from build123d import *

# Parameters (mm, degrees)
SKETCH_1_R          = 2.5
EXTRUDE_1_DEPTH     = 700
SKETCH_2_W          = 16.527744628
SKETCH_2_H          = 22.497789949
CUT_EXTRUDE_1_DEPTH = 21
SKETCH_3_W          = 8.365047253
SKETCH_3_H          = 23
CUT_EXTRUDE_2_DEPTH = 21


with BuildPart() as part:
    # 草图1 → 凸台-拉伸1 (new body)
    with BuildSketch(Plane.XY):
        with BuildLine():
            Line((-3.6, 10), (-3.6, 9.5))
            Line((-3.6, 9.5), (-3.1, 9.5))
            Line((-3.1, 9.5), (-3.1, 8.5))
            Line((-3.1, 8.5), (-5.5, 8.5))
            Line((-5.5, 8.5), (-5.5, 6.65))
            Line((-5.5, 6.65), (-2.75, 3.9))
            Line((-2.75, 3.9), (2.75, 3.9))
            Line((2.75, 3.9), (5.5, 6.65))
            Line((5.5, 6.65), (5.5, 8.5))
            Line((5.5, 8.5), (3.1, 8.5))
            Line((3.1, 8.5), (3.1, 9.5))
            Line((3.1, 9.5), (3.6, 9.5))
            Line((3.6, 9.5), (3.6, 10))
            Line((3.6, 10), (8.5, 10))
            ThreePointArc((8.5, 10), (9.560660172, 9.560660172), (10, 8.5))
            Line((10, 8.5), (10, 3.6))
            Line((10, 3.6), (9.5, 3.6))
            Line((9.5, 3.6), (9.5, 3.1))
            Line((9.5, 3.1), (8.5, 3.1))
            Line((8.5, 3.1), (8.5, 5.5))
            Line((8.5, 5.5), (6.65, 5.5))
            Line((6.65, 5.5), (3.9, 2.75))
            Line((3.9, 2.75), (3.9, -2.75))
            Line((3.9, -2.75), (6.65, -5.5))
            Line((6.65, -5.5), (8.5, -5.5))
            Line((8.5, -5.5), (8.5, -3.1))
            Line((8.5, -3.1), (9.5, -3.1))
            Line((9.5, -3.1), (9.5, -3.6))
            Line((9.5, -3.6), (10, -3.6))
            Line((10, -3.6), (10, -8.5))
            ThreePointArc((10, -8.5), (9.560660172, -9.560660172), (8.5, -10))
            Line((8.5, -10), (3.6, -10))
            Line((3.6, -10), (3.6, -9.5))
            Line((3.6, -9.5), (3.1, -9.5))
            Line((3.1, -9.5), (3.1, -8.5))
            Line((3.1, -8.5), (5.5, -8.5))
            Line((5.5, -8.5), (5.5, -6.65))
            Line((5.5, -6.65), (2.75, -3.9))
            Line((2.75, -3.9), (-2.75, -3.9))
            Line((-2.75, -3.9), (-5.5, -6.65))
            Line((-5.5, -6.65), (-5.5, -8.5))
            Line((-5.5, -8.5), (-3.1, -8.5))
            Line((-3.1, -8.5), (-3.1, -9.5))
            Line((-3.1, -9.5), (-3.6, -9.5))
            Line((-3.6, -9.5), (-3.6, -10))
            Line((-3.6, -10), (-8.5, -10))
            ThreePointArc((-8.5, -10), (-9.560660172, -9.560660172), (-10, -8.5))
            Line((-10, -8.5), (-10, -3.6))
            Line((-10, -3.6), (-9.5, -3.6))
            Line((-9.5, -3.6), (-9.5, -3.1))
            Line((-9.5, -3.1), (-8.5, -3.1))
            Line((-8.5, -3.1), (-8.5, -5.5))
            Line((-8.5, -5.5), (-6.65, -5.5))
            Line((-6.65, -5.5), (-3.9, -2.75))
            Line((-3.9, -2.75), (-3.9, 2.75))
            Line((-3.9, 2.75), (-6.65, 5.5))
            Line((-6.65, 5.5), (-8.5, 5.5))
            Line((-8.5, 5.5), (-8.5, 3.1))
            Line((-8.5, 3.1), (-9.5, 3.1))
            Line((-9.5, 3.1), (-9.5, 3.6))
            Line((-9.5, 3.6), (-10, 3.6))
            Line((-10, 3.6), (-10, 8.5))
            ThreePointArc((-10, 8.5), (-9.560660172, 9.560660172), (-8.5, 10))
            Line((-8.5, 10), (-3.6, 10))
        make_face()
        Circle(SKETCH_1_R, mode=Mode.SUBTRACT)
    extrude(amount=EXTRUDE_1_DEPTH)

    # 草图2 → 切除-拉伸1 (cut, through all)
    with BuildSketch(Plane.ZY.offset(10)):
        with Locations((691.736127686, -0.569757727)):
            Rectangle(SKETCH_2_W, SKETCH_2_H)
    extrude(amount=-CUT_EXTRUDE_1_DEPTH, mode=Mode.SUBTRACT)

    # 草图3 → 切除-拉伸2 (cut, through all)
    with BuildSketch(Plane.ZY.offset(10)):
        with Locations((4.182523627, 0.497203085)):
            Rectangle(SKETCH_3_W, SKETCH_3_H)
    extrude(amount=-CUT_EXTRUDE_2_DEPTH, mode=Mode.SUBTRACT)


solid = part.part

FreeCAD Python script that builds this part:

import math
import FreeCAD as App
import Part
import Sketcher

doc = App.newDocument("Part")
params = doc.addObject("Spreadsheet::Sheet", "Params")
for row, (alias, value) in enumerate([
    ("sketch1_diameter", "5 mm"),
    ("sketch1_radius", "1.5 mm"),
    ("sketch1_width", "1 mm"),
    ("sketch1_width2", "4.9 mm"),
    ("sketch1_width3", "2.4 mm"),
    ("pad1_length", "700 mm"),
    ("sketch3_width", "23 mm"),
], start=1):
    params.set(f"A{row}", alias)
    params.set(f"B{row}", "=" + value)
    params.setAlias(f"B{row}", alias)

body = doc.addObject("PartDesign::Body", "Body")

# Sketch on XY plane
sketch1 = body.newObject("Sketcher::SketchObject", "Sketch")
sketch1.AttachmentSupport = (doc.getObject("XY_Plane"), [""])
sketch1.MapMode = "FlatFace"
sketch1.addGeometry([
    Part.LineSegment(App.Vector(-3.6, 9.5, 0), App.Vector(-3.6, 10, 0)),  # 0
    Part.LineSegment(App.Vector(-3.6, 10, 0), App.Vector(-8.5, 10, 0)),  # 1
    Part.ArcOfCircle(Part.Circle(App.Vector(-8.5, 8.5, 0), App.Vector(0, 0, 1), 1.5), math.radians(90), math.radians(180)),  # 2
    Part.LineSegment(App.Vector(-10, 8.5, 0), App.Vector(-10, 3.6, 0)),  # 3
    Part.LineSegment(App.Vector(-10, 3.6, 0), App.Vector(-9.5, 3.6, 0)),  # 4
    Part.LineSegment(App.Vector(-9.5, 3.6, 0), App.Vector(-9.5, 3.1, 0)),  # 5
    Part.LineSegment(App.Vector(-9.5, 3.1, 0), App.Vector(-8.5, 3.1, 0)),  # 6
    Part.LineSegment(App.Vector(-8.5, 3.1, 0), App.Vector(-8.5, 5.5, 0)),  # 7
    Part.LineSegment(App.Vector(-8.5, 5.5, 0), App.Vector(-6.7, 5.5, 0)),  # 8
    Part.LineSegment(App.Vector(-6.7, 5.5, 0), App.Vector(-3.9, 2.8, 0)),  # 9
    Part.LineSegment(App.Vector(-3.9, 2.8, 0), App.Vector(-3.9, -2.8, 0)),  # 10
    Part.LineSegment(App.Vector(-3.9, -2.8, 0), App.Vector(-6.7, -5.5, 0)),  # 11
    Part.LineSegment(App.Vector(-6.7, -5.5, 0), App.Vector(-8.5, -5.5, 0)),  # 12
    Part.LineSegment(App.Vector(-8.5, -5.5, 0), App.Vector(-8.5, -3.1, 0)),  # 13
    Part.LineSegment(App.Vector(-8.5, -3.1, 0), App.Vector(-9.5, -3.1, 0)),  # 14
    Part.LineSegment(App.Vector(-9.5, -3.1, 0), App.Vector(-9.5, -3.6, 0)),  # 15
    Part.LineSegment(App.Vector(-9.5, -3.6, 0), App.Vector(-10, -3.6, 0)),  # 16
    Part.LineSegment(App.Vector(-10, -3.6, 0), App.Vector(-10, -8.5, 0)),  # 17
    Part.ArcOfCircle(Part.Circle(App.Vector(-8.5, -8.5, 0), App.Vector(0, 0, 1), 1.5), math.radians(180), math.radians(270)),  # 18
    Part.LineSegment(App.Vector(-8.5, -10, 0), App.Vector(-3.6, -10, 0)),  # 19
    Part.LineSegment(App.Vector(-3.6, -10, 0), App.Vector(-3.6, -9.5, 0)),  # 20
    Part.LineSegment(App.Vector(-3.6, -9.5, 0), App.Vector(-3.1, -9.5, 0)),  # 21
    Part.LineSegment(App.Vector(-3.1, -9.5, 0), App.Vector(-3.1, -8.5, 0)),  # 22
    Part.LineSegment(App.Vector(-3.1, -8.5, 0), App.Vector(-5.5, -8.5, 0)),  # 23
    Part.LineSegment(App.Vector(-5.5, -8.5, 0), App.Vector(-5.5, -6.7, 0)),  # 24
    Part.LineSegment(App.Vector(-5.5, -6.7, 0), App.Vector(-2.8, -3.9, 0)),  # 25
    Part.LineSegment(App.Vector(-2.8, -3.9, 0), App.Vector(2.8, -3.9, 0)),  # 26
    Part.LineSegment(App.Vector(2.8, -3.9, 0), App.Vector(5.5, -6.7, 0)),  # 27
    Part.LineSegment(App.Vector(5.5, -6.7, 0), App.Vector(5.5, -8.5, 0)),  # 28
    Part.LineSegment(App.Vector(5.5, -8.5, 0), App.Vector(3.1, -8.5, 0)),  # 29
    Part.LineSegment(App.Vector(3.1, -8.5, 0), App.Vector(3.1, -9.5, 0)),  # 30
    Part.LineSegment(App.Vector(3.1, -9.5, 0), App.Vector(3.6, -9.5, 0)),  # 31
    Part.LineSegment(App.Vector(3.6, -9.5, 0), App.Vector(3.6, -10, 0)),  # 32
    Part.LineSegment(App.Vector(3.6, -10, 0), App.Vector(8.5, -10, 0)),  # 33
    Part.ArcOfCircle(Part.Circle(App.Vector(8.5, -8.5, 0), App.Vector(0, 0, 1), 1.5), math.radians(-90), math.radians(0)),  # 34
    Part.LineSegment(App.Vector(10, -8.5, 0), App.Vector(10, -3.6, 0)),  # 35
    Part.LineSegment(App.Vector(10, -3.6, 0), App.Vector(9.5, -3.6, 0)),  # 36
    Part.LineSegment(App.Vector(9.5, -3.6, 0), App.Vector(9.5, -3.1, 0)),  # 37
    Part.LineSegment(App.Vector(9.5, -3.1, 0), App.Vector(8.5, -3.1, 0)),  # 38
    Part.LineSegment(App.Vector(8.5, -3.1, 0), App.Vector(8.5, -5.5, 0)),  # 39
    Part.LineSegment(App.Vector(8.5, -5.5, 0), App.Vector(6.7, -5.5, 0)),  # 40
    Part.LineSegment(App.Vector(6.7, -5.5, 0), App.Vector(3.9, -2.8, 0)),  # 41
    Part.LineSegment(App.Vector(3.9, -2.8, 0), App.Vector(3.9, 2.8, 0)),  # 42
    Part.LineSegment(App.Vector(3.9, 2.8, 0), App.Vector(6.7, 5.5, 0)),  # 43
    Part.LineSegment(App.Vector(6.7, 5.5, 0), App.Vector(8.5, 5.5, 0)),  # 44
    Part.LineSegment(App.Vector(8.5, 5.5, 0), App.Vector(8.5, 3.1, 0)),  # 45
    Part.LineSegment(App.Vector(8.5, 3.1, 0), App.Vector(9.5, 3.1, 0)),  # 46
    Part.LineSegment(App.Vector(9.5, 3.1, 0), App.Vector(9.5, 3.6, 0)),  # 47
    Part.LineSegment(App.Vector(9.5, 3.6, 0), App.Vector(10, 3.6, 0)),  # 48
    Part.LineSegment(App.Vector(10, 3.6, 0), App.Vector(10, 8.5, 0)),  # 49
    Part.ArcOfCircle(Part.Circle(App.Vector(8.5, 8.5, 0), App.Vector(0, 0, 1), 1.5), math.radians(0), math.radians(90)),  # 50
    Part.LineSegment(App.Vector(8.5, 10, 0), App.Vector(3.6, 10, 0)),  # 51
    Part.LineSegment(App.Vector(3.6, 10, 0), App.Vector(3.6, 9.5, 0)),  # 52
    Part.LineSegment(App.Vector(3.6, 9.5, 0), App.Vector(3.1, 9.5, 0)),  # 53
    Part.LineSegment(App.Vector(3.1, 9.5, 0), App.Vector(3.1, 8.5, 0)),  # 54
    Part.LineSegment(App.Vector(3.1, 8.5, 0), App.Vector(5.5, 8.5, 0)),  # 55
    Part.LineSegment(App.Vector(5.5, 8.5, 0), App.Vector(5.5, 6.7, 0)),  # 56
    Part.LineSegment(App.Vector(5.5, 6.7, 0), App.Vector(2.8, 3.9, 0)),  # 57
    Part.LineSegment(App.Vector(2.8, 3.9, 0), App.Vector(-2.8, 3.9, 0)),  # 58
    Part.LineSegment(App.Vector(-2.8, 3.9, 0), App.Vector(-5.5, 6.7, 0)),  # 59
    Part.LineSegment(App.Vector(-5.5, 6.7, 0), App.Vector(-5.5, 8.5, 0)),  # 60
    Part.LineSegment(App.Vector(-5.5, 8.5, 0), App.Vector(-3.1, 8.5, 0)),  # 61
    Part.LineSegment(App.Vector(-3.1, 8.5, 0), App.Vector(-3.1, 9.5, 0)),  # 62
    Part.LineSegment(App.Vector(-3.1, 9.5, 0), App.Vector(-3.6, 9.5, 0)),  # 63
    Part.Circle(App.Vector(0, 0, 0), App.Vector(0, 0, 1), 2.5),  # 64
], False)
sketch1.addConstraint([
    Sketcher.Constraint("Coincident", 0, 2, 1, 1),
    Sketcher.Constraint("Tangent", 1, 2, 2, 1),
    Sketcher.Constraint("Tangent", 2, 2, 3, 1),
    Sketcher.Constraint("Coincident", 3, 2, 4, 1),
    Sketcher.Constraint("Coincident", 4, 2, 5, 1),
    Sketcher.Constraint("Coincident", 5, 2, 6, 1),
    Sketcher.Constraint("Coincident", 6, 2, 7, 1),
    Sketcher.Constraint("Coincident", 7, 2, 8, 1),
    Sketcher.Constraint("Coincident", 8, 2, 9, 1),
    Sketcher.Constraint("Coincident", 9, 2, 10, 1),
    Sketcher.Constraint("Coincident", 10, 2, 11, 1),
    Sketcher.Constraint("Coincident", 11, 2, 12, 1),
    Sketcher.Constraint("Coincident", 12, 2, 13, 1),
    Sketcher.Constraint("Coincident", 13, 2, 14, 1),
    Sketcher.Constraint("Coincident", 14, 2, 15, 1),
    Sketcher.Constraint("Coincident", 15, 2, 16, 1),
    Sketcher.Constraint("Coincident", 16, 2, 17, 1),
    Sketcher.Constraint("Tangent", 17, 2, 18, 1),
    Sketcher.Constraint("Tangent", 18, 2, 19, 1),
    Sketcher.Constraint("Coincident", 19, 2, 20, 1),
    Sketcher.Constraint("Coincident", 20, 2, 21, 1),
    Sketcher.Constraint("Coincident", 21, 2, 22, 1),
    Sketcher.Constraint("Coincident", 22, 2, 23, 1),
    Sketcher.Constraint("Coincident", 23, 2, 24, 1),
    Sketcher.Constraint("Coincident", 24, 2, 25, 1),
    Sketcher.Constraint("Coincident", 25, 2, 26, 1),
    Sketcher.Constraint("Coincident", 26, 2, 27, 1),
    Sketcher.Constraint("Coincident", 27, 2, 28, 1),
    Sketcher.Constraint("Coincident", 28, 2, 29, 1),
    Sketcher.Constraint("Coincident", 29, 2, 30, 1),
    Sketcher.Constraint("Coincident", 30, 2, 31, 1),
    Sketcher.Constraint("Coincident", 31, 2, 32, 1),
    Sketcher.Constraint("Coincident", 32, 2, 33, 1),
    Sketcher.Constraint("Tangent", 33, 2, 34, 1),
    Sketcher.Constraint("Tangent", 34, 2, 35, 1),
    Sketcher.Constraint("Coincident", 35, 2, 36, 1),
    Sketcher.Constraint("Coincident", 36, 2, 37, 1),
    Sketcher.Constraint("Coincident", 37, 2, 38, 1),
    Sketcher.Constraint("Coincident", 38, 2, 39, 1),
    Sketcher.Constraint("Coincident", 39, 2, 40, 1),
    Sketcher.Constraint("Coincident", 40, 2, 41, 1),
    Sketcher.Constraint("Coincident", 41, 2, 42, 1),
    Sketcher.Constraint("Coincident", 42, 2, 43, 1),
    Sketcher.Constraint("Coincident", 43, 2, 44, 1),
    Sketcher.Constraint("Coincident", 44, 2, 45, 1),
    Sketcher.Constraint("Coincident", 45, 2, 46, 1),
    Sketcher.Constraint("Coincident", 46, 2, 47, 1),
    Sketcher.Constraint("Coincident", 47, 2, 48, 1),
    Sketcher.Constraint("Coincident", 48, 2, 49, 1),
    Sketcher.Constraint("Tangent", 49, 2, 50, 1),
    Sketcher.Constraint("Tangent", 50, 2, 51, 1),
    Sketcher.Constraint("Coincident", 51, 2, 52, 1),
    Sketcher.Constraint("Coincident", 52, 2, 53, 1),
    Sketcher.Constraint("Coincident", 53, 2, 54, 1),
    Sketcher.Constraint("Coincident", 54, 2, 55, 1),
    Sketcher.Constraint("Coincident", 55, 2, 56, 1),
    Sketcher.Constraint("Coincident", 56, 2, 57, 1),
    Sketcher.Constraint("Coincident", 57, 2, 58, 1),
    Sketcher.Constraint("Coincident", 58, 2, 59, 1),
    Sketcher.Constraint("Coincident", 59, 2, 60, 1),
    Sketcher.Constraint("Coincident", 60, 2, 61, 1),
    Sketcher.Constraint("Coincident", 61, 2, 62, 1),
    Sketcher.Constraint("Coincident", 62, 2, 63, 1),
    Sketcher.Constraint("Coincident", 63, 2, 0, 1),
    Sketcher.Constraint("Vertical", 0),
    Sketcher.Constraint("Horizontal", 1),
    Sketcher.Constraint("Vertical", 3),
    Sketcher.Constraint("Horizontal", 4),
    Sketcher.Constraint("Vertical", 5),
    Sketcher.Constraint("Horizontal", 6),
    Sketcher.Constraint("Vertical", 7),
    Sketcher.Constraint("Horizontal", 8),
    Sketcher.Constraint("Vertical", 10),
    Sketcher.Constraint("Horizontal", 12),
    Sketcher.Constraint("Vertical", 13),
    Sketcher.Constraint("Horizontal", 14),
    Sketcher.Constraint("Vertical", 15),
    Sketcher.Constraint("Horizontal", 16),
    Sketcher.Constraint("Vertical", 17),
    Sketcher.Constraint("Horizontal", 19),
    Sketcher.Constraint("Vertical", 20),
    Sketcher.Constraint("Horizontal", 21),
    Sketcher.Constraint("Vertical", 22),
    Sketcher.Constraint("Horizontal", 23),
    Sketcher.Constraint("Vertical", 24),
    Sketcher.Constraint("Horizontal", 26),
    Sketcher.Constraint("Vertical", 28),
    Sketcher.Constraint("Horizontal", 29),
    Sketcher.Constraint("Vertical", 30),
    Sketcher.Constraint("Horizontal", 31),
    Sketcher.Constraint("Vertical", 32),
    Sketcher.Constraint("Horizontal", 33),
    Sketcher.Constraint("Vertical", 35),
    Sketcher.Constraint("Horizontal", 36),
    Sketcher.Constraint("Vertical", 37),
    Sketcher.Constraint("Horizontal", 38),
    Sketcher.Constraint("Vertical", 39),
    Sketcher.Constraint("Horizontal", 40),
    Sketcher.Constraint("Vertical", 42),
    Sketcher.Constraint("Horizontal", 44),
    Sketcher.Constraint("Vertical", 45),
    Sketcher.Constraint("Horizontal", 46),
    Sketcher.Constraint("Vertical", 47),
    Sketcher.Constraint("Horizontal", 48),
    Sketcher.Constraint("Vertical", 49),
    Sketcher.Constraint("Horizontal", 51),
    Sketcher.Constraint("Vertical", 52),
    Sketcher.Constraint("Horizontal", 53),
    Sketcher.Constraint("Vertical", 54),
    Sketcher.Constraint("Horizontal", 55),
    Sketcher.Constraint("Vertical", 56),
    Sketcher.Constraint("Horizontal", 58),
    Sketcher.Constraint("Vertical", 60),
    Sketcher.Constraint("Horizontal", 61),
    Sketcher.Constraint("Vertical", 62),
    Sketcher.Constraint("Horizontal", 63),
    Sketcher.Constraint("Coincident", 64, 3, -1, 1),
    Sketcher.Constraint("Equal", 2, 18),
    Sketcher.Constraint("Equal", 18, 34),
    Sketcher.Constraint("Equal", 34, 50),
    Sketcher.Constraint("Symmetric", 2, 3, 34, 3, -1, 1),
    Sketcher.Constraint("Symmetric", 18, 3, 50, 3, -1, 1),
    Sketcher.Constraint("Symmetric", 4, 2, 36, 2, -1, 1),
    Sketcher.Constraint("Symmetric", 6, 2, 38, 2, -1, 1),
    Sketcher.Constraint("Symmetric", 8, 2, 40, 2, -1, 1),
    Sketcher.Constraint("Symmetric", 9, 2, 41, 2, -1, 1),
    Sketcher.Constraint("Symmetric", 11, 2, 43, 2, -1, 1),
    Sketcher.Constraint("Symmetric", 13, 2, 45, 2, -1, 1),
    Sketcher.Constraint("Symmetric", 15, 2, 47, 2, -1, 1),
    Sketcher.Constraint("Symmetric", 20, 2, 52, 2, -1, 1),
    Sketcher.Constraint("Symmetric", 22, 2, 54, 2, -1, 1),
    Sketcher.Constraint("Symmetric", 24, 2, 56, 2, -1, 1),
    Sketcher.Constraint("Symmetric", 25, 2, 57, 2, -1, 1),
    Sketcher.Constraint("Symmetric", 27, 2, 59, 2, -1, 1),
    Sketcher.Constraint("Symmetric", 29, 2, 61, 2, -1, 1),
    Sketcher.Constraint("Symmetric", 31, 2, 63, 2, -1, 1),
    Sketcher.Constraint("Symmetric", 18, 3, 34, 3, -2),
    Sketcher.Constraint("Symmetric", 24, 2, 27, 2, -2),
    Sketcher.Constraint("Symmetric", 22, 2, 29, 2, -2),
    Sketcher.Constraint("Symmetric", 20, 2, 31, 2, -2),
    Sketcher.Constraint("Symmetric", 15, 2, 36, 2, -2),
    Sketcher.Constraint("Symmetric", 13, 2, 38, 2, -2),
    Sketcher.Constraint("Symmetric", 11, 2, 40, 2, -2),
    Sketcher.Constraint("Perpendicular", 9, 11),
    Sketcher.Constraint("Parallel", 11, 25),
    Sketcher.Constraint("Perpendicular", 25, 27),
    Sketcher.Constraint("Perpendicular", 41, 43),
    Sketcher.Constraint("Perpendicular", 57, 59),
    Sketcher.Constraint("Horizontal", 17, 2, 22, 2),
    Sketcher.Constraint("Horizontal", 10, 2, 41, 2),
    Sketcher.Constraint("Vertical", 1, 2, 6, 2),
    Sketcher.Constraint("Equal", 16, 21),
    Sketcher.Constraint("Equal", 63, 0),
    Sketcher.Constraint("Equal", 51, 3),
    Sketcher.Constraint("Equal", 0, 5),
    Sketcher.Constraint("Equal", 61, 7),
    Sketcher.Constraint("Equal", 58, 10),
    Sketcher.Constraint("Equal", 44, 24),
    Sketcher.Constraint("Equal", 11, 25),
    Sketcher.Constraint("Diameter", 64, 5.0),
    Sketcher.Constraint("Radius", 2, 1.5),
    Sketcher.Constraint("DistanceX", 6, 1, 6, 2, 1.0),
    Sketcher.Constraint("DistanceX", 1, 2, 1, 1, 4.9),
    Sketcher.Constraint("DistanceX", 23, 2, 23, 1, 2.4),
    Sketcher.Constraint("DistanceX", 26, 1, 26, 2, 5.5),
    Sketcher.Constraint("DistanceY", -1, 1, 0, 2, 10.0),
    Sketcher.Constraint("DistanceX", 8, 1, 8, 2, 1.85),
])
sketch1.setExpression("Constraints[159]", "Params.sketch1_diameter")
sketch1.setExpression("Constraints[160]", "Params.sketch1_radius")
sketch1.setExpression("Constraints[161]", "Params.sketch1_width")
sketch1.setExpression("Constraints[162]", "Params.sketch1_width2")
sketch1.setExpression("Constraints[163]", "Params.sketch1_width3")
pad1 = body.newObject("PartDesign::Pad", "Pad")
pad1.Profile = sketch1
pad1.setExpression("Length", "Params.pad1_length")

# Sketch on YZ plane
sketch2 = body.newObject("Sketcher::SketchObject", "Sketch001")
sketch2.AttachmentSupport = (doc.getObject("YZ_Plane"), [""])
sketch2.MapMode = "FlatFace"
sketch2.AttachmentOffset = App.Placement(App.Vector(0, 0, -10), App.Rotation())
sketch2.addGeometry([
    Part.LineSegment(App.Vector(11, 683, 0), App.Vector(-12, 683, 0)),
    Part.LineSegment(App.Vector(-12, 683, 0), App.Vector(-12, 700, 0)),
    Part.LineSegment(App.Vector(-12, 700, 0), App.Vector(11, 700, 0)),
    Part.LineSegment(App.Vector(11, 700, 0), App.Vector(11, 683, 0)),
], False)
sketch2.addConstraint([
    Sketcher.Constraint("Coincident", 0, 2, 1, 1),
    Sketcher.Constraint("Coincident", 1, 2, 2, 1),
    Sketcher.Constraint("Coincident", 2, 2, 3, 1),
    Sketcher.Constraint("Coincident", 3, 2, 0, 1),
    Sketcher.Constraint("Horizontal", 0),
    Sketcher.Constraint("Vertical", 1),
    Sketcher.Constraint("Horizontal", 2),
    Sketcher.Constraint("Vertical", 3),
    Sketcher.Constraint("DistanceY", -1, 1, 1, 2, 700.0),
    Sketcher.Constraint("DistanceX", 0, 2, 0, 1, 22.49779),
    Sketcher.Constraint("DistanceY", 1, 1, 1, 2, 16.527745),
    Sketcher.Constraint("DistanceX", 0, 2, -1, 1, 11.818653),
])
pocket1 = body.newObject("PartDesign::Pocket", "Pocket")
pocket1.Profile = sketch2
pocket1.Type = "ThroughAll"
pocket1.Reversed = True

# Sketch on YZ plane
sketch3 = body.newObject("Sketcher::SketchObject", "Sketch002")
sketch3.AttachmentSupport = (doc.getObject("YZ_Plane"), [""])
sketch3.MapMode = "FlatFace"
sketch3.AttachmentOffset = App.Placement(App.Vector(0, 0, -10), App.Rotation())
sketch3.addGeometry([
    Part.LineSegment(App.Vector(12, 0, 0), App.Vector(-11, 0, 0)),
    Part.LineSegment(App.Vector(-11, 0, 0), App.Vector(-11, 8, 0)),
    Part.LineSegment(App.Vector(-11, 8, 0), App.Vector(12, 8, 0)),
    Part.LineSegment(App.Vector(12, 8, 0), App.Vector(12, 0, 0)),
], False)
sketch3.addConstraint([
    Sketcher.Constraint("Coincident", 0, 2, 1, 1),
    Sketcher.Constraint("Coincident", 1, 2, 2, 1),
    Sketcher.Constraint("Coincident", 2, 2, 3, 1),
    Sketcher.Constraint("Coincident", 3, 2, 0, 1),
    Sketcher.Constraint("Horizontal", 0),
    Sketcher.Constraint("Vertical", 1),
    Sketcher.Constraint("Horizontal", 2),
    Sketcher.Constraint("Vertical", 3),
    Sketcher.Constraint("PointOnObject", 0, 2, -1),
    Sketcher.Constraint("DistanceX", 0, 2, 0, 1, 23.0),
    Sketcher.Constraint("DistanceY", 1, 1, 1, 2, 8.365047),
    Sketcher.Constraint("DistanceX", 0, 2, -1, 1, 11.002797),
])
sketch3.setExpression("Constraints[9]", "Params.sketch3_width")
pocket2 = body.newObject("PartDesign::Pocket", "Pocket001")
pocket2.Profile = sketch3
pocket2.Type = "ThroughAll"
pocket2.Reversed = True

doc.recompute()
